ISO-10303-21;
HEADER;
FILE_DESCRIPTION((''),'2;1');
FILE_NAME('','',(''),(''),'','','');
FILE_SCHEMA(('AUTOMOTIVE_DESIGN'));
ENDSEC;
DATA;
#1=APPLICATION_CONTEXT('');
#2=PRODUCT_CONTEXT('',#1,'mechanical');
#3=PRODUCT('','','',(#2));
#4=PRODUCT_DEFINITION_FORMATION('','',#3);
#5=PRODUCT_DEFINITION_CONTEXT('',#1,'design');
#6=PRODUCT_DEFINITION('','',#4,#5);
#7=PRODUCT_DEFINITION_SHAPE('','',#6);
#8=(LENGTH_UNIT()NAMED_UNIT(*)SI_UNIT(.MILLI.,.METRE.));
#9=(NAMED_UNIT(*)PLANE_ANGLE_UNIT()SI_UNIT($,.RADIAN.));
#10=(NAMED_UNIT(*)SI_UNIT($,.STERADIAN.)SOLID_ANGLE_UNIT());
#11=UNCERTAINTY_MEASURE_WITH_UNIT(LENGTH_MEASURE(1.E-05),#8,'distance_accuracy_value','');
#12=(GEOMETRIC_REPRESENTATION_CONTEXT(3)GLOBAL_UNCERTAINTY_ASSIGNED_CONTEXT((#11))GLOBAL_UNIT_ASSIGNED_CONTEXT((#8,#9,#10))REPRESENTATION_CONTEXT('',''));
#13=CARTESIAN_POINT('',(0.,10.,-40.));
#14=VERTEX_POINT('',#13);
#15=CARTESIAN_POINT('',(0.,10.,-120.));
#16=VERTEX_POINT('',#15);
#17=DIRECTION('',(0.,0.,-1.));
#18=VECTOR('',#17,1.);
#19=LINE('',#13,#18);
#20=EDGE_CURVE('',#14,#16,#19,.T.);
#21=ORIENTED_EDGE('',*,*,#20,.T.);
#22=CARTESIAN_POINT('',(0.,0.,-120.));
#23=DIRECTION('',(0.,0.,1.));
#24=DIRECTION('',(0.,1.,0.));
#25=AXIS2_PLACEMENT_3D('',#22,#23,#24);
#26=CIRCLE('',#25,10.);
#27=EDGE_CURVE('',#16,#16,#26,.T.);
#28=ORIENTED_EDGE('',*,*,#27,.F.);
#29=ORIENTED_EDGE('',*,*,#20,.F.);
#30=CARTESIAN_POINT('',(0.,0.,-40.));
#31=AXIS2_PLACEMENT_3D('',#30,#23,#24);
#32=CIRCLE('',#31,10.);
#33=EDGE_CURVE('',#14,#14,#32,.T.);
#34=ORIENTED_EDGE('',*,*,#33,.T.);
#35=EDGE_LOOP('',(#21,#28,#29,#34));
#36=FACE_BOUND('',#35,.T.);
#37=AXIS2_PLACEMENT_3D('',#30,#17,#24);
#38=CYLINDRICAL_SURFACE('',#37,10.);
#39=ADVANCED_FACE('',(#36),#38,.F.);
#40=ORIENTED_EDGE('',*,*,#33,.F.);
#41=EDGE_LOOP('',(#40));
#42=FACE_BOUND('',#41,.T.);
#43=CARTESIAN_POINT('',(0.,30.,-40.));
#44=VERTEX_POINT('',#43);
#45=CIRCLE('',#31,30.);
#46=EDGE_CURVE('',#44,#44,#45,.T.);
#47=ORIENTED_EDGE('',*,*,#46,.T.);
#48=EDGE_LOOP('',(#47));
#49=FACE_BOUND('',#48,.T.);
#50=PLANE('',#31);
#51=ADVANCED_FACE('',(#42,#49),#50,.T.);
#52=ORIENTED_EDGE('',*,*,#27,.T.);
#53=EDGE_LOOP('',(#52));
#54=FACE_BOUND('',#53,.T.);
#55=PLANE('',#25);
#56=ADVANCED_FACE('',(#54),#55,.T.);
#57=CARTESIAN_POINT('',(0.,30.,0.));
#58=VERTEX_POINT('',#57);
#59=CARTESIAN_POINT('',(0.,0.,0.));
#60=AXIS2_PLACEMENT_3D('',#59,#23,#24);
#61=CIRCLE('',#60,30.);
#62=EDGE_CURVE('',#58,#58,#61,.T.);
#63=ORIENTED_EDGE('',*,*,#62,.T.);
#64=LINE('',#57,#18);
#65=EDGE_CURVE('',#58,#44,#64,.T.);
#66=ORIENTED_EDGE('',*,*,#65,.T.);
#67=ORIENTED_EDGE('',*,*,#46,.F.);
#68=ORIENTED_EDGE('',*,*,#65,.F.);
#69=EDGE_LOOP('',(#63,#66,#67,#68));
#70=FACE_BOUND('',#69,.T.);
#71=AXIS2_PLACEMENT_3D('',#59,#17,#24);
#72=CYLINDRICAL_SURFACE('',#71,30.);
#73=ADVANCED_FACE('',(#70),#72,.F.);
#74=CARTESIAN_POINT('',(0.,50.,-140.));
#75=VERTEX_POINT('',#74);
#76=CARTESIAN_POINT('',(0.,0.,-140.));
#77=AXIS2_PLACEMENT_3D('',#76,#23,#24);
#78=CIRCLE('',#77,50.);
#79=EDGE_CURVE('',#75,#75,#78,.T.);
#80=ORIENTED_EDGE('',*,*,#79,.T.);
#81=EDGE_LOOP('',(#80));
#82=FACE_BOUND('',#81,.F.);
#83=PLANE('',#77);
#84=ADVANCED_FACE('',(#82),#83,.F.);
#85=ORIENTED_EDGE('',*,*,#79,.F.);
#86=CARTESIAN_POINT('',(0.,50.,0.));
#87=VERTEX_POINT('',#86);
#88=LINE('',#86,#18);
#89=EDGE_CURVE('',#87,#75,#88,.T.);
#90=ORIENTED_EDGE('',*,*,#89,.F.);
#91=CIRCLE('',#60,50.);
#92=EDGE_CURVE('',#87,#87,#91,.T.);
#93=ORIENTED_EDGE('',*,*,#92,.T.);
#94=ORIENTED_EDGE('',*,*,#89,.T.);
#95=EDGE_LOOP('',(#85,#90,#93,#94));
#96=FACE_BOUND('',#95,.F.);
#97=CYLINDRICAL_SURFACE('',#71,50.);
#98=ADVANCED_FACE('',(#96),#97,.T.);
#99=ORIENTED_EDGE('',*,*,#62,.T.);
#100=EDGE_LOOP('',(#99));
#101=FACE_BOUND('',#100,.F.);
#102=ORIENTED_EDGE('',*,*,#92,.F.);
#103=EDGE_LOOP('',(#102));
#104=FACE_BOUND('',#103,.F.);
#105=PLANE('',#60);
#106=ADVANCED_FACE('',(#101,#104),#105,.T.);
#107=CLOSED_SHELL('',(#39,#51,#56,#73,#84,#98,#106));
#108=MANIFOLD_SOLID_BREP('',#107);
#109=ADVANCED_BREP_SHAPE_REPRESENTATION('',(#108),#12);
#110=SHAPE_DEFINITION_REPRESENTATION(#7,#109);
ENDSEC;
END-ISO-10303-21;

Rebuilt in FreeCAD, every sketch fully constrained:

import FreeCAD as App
import Part
import Sketcher

V = App.Vector

doc = App.newDocument("Part")
body = doc.addObject("PartDesign::Body", "Body")

# Sketch on YZ plane
sketch1 = body.newObject("Sketcher::SketchObject", "Sketch")
sketch1.AttachmentSupport = (doc.getObject("YZ_Plane"), [""])
sketch1.MapMode = "FlatFace"
sketch1.addGeometry(Part.LineSegment(V(50, 0, 0), V(30, 0, 0)), False)
sketch1.addGeometry(Part.LineSegment(V(30, 0, 0), V(30, -40, 0)), False)
sketch1.addGeometry(Part.LineSegment(V(30, -40, 0), V(10, -40, 0)), False)
sketch1.addGeometry(Part.LineSegment(V(10, -40, 0), V(10, -120, 0)), False)
sketch1.addGeometry(Part.LineSegment(V(10, -120, 0), V(0, -120, 0)), False)
sketch1.addGeometry(Part.LineSegment(V(0, -120, 0), V(0, -140, 0)), False)
sketch1.addGeometry(Part.LineSegment(V(0, -140, 0), V(50, -140, 0)), False)
sketch1.addGeometry(Part.LineSegment(V(50, -140, 0), V(50, 0, 0)), False)
sketch1.addConstraint(Sketcher.Constraint("Coincident", 0, 2, 1, 1))
sketch1.addConstraint(Sketcher.Constraint("Coincident", 1, 2, 2, 1))
sketch1.addConstraint(Sketcher.Constraint("Coincident", 2, 2, 3, 1))
sketch1.addConstraint(Sketcher.Constraint("Coincident", 3, 2, 4, 1))
sketch1.addConstraint(Sketcher.Constraint("Coincident", 4, 2, 5, 1))
sketch1.addConstraint(Sketcher.Constraint("Coincident", 5, 2, 6, 1))
sketch1.addConstraint(Sketcher.Constraint("Coincident", 6, 2, 7, 1))
sketch1.addConstraint(Sketcher.Constraint("Coincident", 7, 2, 0, 1))
sketch1.addConstraint(Sketcher.Constraint("Horizontal", 0))
sketch1.addConstraint(Sketcher.Constraint("Vertical", 1))
sketch1.addConstraint(Sketcher.Constraint("Horizontal", 2))
sketch1.addConstraint(Sketcher.Constraint("Vertical", 3))
sketch1.addConstraint(Sketcher.Constraint("Horizontal", 4))
sketch1.addConstraint(Sketcher.Constraint("Vertical", 5))
sketch1.addConstraint(Sketcher.Constraint("Horizontal", 6))
sketch1.addConstraint(Sketcher.Constraint("Vertical", 7))
sketch1.addConstraint(Sketcher.Constraint("PointOnObject", 0, 2, -1))
sketch1.addConstraint(Sketcher.Constraint("PointOnObject", 4, 2, -2))
sketch1.addConstraint(Sketcher.Constraint("Equal", 0, 2))
sketch1.addConstraint(Sketcher.Constraint("Equal", 2, 5))
sketch1.addConstraint(Sketcher.Constraint("DistanceX", 4, 2, 4, 1, 10.0))
sketch1.addConstraint(Sketcher.Constraint("DistanceX", 6, 1, 6, 2, 50.0))
sketch1.addConstraint(Sketcher.Constraint("DistanceY", 1, 2, 1, 1, 40.0))
sketch1.addConstraint(Sketcher.Constraint("DistanceY", 7, 1, 7, 2, 140.0))
revolution = body.newObject("PartDesign::Revolution", "Revolution")
revolution.Profile = sketch1
revolution.ReferenceAxis = (sketch1, ["V_Axis"])
revolution.Angle = 360

doc.recompute()
